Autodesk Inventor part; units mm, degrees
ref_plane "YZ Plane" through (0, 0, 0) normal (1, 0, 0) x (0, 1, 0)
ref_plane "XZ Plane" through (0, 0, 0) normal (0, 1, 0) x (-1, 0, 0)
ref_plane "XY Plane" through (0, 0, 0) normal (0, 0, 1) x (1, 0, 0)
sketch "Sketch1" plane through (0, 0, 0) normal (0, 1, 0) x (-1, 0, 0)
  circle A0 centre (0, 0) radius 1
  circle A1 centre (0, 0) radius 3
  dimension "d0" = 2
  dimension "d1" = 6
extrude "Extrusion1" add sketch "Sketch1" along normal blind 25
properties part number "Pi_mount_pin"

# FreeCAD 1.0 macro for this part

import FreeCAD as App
import Part
import Sketcher
Q = App.Units.Quantity

doc = App.newDocument("Part")
body = doc.addObject("PartDesign::Body", "Body")

sketch1 = body.newObject("Sketcher::SketchObject", "Sketch")
sketch1.AttachmentSupport = (doc.getObject("XZ_Plane"), [""])
sketch1.MapMode = "FlatFace"
sketch1.addGeometry([
    Part.Circle(App.Vector(0, 0, 0), App.Vector(0, 0, 1), 3),
    Part.Circle(App.Vector(0, 0, 0), App.Vector(0, 0, 1), 1),
], False)
sketch1.addConstraint([
    Sketcher.Constraint("Coincident", 0, 3, -1, 1),
    Sketcher.Constraint("Coincident", 1, 3, -1, 1),
    Sketcher.Constraint("Diameter", 0, Q("6 mm")),
    Sketcher.Constraint("Diameter", 1, Q("2 mm")),
])
pad1 = body.newObject("PartDesign::Pad", "Pad")
pad1.Profile = sketch1
pad1.Length = 25
pad1.Reversed = True

doc.recompute()
